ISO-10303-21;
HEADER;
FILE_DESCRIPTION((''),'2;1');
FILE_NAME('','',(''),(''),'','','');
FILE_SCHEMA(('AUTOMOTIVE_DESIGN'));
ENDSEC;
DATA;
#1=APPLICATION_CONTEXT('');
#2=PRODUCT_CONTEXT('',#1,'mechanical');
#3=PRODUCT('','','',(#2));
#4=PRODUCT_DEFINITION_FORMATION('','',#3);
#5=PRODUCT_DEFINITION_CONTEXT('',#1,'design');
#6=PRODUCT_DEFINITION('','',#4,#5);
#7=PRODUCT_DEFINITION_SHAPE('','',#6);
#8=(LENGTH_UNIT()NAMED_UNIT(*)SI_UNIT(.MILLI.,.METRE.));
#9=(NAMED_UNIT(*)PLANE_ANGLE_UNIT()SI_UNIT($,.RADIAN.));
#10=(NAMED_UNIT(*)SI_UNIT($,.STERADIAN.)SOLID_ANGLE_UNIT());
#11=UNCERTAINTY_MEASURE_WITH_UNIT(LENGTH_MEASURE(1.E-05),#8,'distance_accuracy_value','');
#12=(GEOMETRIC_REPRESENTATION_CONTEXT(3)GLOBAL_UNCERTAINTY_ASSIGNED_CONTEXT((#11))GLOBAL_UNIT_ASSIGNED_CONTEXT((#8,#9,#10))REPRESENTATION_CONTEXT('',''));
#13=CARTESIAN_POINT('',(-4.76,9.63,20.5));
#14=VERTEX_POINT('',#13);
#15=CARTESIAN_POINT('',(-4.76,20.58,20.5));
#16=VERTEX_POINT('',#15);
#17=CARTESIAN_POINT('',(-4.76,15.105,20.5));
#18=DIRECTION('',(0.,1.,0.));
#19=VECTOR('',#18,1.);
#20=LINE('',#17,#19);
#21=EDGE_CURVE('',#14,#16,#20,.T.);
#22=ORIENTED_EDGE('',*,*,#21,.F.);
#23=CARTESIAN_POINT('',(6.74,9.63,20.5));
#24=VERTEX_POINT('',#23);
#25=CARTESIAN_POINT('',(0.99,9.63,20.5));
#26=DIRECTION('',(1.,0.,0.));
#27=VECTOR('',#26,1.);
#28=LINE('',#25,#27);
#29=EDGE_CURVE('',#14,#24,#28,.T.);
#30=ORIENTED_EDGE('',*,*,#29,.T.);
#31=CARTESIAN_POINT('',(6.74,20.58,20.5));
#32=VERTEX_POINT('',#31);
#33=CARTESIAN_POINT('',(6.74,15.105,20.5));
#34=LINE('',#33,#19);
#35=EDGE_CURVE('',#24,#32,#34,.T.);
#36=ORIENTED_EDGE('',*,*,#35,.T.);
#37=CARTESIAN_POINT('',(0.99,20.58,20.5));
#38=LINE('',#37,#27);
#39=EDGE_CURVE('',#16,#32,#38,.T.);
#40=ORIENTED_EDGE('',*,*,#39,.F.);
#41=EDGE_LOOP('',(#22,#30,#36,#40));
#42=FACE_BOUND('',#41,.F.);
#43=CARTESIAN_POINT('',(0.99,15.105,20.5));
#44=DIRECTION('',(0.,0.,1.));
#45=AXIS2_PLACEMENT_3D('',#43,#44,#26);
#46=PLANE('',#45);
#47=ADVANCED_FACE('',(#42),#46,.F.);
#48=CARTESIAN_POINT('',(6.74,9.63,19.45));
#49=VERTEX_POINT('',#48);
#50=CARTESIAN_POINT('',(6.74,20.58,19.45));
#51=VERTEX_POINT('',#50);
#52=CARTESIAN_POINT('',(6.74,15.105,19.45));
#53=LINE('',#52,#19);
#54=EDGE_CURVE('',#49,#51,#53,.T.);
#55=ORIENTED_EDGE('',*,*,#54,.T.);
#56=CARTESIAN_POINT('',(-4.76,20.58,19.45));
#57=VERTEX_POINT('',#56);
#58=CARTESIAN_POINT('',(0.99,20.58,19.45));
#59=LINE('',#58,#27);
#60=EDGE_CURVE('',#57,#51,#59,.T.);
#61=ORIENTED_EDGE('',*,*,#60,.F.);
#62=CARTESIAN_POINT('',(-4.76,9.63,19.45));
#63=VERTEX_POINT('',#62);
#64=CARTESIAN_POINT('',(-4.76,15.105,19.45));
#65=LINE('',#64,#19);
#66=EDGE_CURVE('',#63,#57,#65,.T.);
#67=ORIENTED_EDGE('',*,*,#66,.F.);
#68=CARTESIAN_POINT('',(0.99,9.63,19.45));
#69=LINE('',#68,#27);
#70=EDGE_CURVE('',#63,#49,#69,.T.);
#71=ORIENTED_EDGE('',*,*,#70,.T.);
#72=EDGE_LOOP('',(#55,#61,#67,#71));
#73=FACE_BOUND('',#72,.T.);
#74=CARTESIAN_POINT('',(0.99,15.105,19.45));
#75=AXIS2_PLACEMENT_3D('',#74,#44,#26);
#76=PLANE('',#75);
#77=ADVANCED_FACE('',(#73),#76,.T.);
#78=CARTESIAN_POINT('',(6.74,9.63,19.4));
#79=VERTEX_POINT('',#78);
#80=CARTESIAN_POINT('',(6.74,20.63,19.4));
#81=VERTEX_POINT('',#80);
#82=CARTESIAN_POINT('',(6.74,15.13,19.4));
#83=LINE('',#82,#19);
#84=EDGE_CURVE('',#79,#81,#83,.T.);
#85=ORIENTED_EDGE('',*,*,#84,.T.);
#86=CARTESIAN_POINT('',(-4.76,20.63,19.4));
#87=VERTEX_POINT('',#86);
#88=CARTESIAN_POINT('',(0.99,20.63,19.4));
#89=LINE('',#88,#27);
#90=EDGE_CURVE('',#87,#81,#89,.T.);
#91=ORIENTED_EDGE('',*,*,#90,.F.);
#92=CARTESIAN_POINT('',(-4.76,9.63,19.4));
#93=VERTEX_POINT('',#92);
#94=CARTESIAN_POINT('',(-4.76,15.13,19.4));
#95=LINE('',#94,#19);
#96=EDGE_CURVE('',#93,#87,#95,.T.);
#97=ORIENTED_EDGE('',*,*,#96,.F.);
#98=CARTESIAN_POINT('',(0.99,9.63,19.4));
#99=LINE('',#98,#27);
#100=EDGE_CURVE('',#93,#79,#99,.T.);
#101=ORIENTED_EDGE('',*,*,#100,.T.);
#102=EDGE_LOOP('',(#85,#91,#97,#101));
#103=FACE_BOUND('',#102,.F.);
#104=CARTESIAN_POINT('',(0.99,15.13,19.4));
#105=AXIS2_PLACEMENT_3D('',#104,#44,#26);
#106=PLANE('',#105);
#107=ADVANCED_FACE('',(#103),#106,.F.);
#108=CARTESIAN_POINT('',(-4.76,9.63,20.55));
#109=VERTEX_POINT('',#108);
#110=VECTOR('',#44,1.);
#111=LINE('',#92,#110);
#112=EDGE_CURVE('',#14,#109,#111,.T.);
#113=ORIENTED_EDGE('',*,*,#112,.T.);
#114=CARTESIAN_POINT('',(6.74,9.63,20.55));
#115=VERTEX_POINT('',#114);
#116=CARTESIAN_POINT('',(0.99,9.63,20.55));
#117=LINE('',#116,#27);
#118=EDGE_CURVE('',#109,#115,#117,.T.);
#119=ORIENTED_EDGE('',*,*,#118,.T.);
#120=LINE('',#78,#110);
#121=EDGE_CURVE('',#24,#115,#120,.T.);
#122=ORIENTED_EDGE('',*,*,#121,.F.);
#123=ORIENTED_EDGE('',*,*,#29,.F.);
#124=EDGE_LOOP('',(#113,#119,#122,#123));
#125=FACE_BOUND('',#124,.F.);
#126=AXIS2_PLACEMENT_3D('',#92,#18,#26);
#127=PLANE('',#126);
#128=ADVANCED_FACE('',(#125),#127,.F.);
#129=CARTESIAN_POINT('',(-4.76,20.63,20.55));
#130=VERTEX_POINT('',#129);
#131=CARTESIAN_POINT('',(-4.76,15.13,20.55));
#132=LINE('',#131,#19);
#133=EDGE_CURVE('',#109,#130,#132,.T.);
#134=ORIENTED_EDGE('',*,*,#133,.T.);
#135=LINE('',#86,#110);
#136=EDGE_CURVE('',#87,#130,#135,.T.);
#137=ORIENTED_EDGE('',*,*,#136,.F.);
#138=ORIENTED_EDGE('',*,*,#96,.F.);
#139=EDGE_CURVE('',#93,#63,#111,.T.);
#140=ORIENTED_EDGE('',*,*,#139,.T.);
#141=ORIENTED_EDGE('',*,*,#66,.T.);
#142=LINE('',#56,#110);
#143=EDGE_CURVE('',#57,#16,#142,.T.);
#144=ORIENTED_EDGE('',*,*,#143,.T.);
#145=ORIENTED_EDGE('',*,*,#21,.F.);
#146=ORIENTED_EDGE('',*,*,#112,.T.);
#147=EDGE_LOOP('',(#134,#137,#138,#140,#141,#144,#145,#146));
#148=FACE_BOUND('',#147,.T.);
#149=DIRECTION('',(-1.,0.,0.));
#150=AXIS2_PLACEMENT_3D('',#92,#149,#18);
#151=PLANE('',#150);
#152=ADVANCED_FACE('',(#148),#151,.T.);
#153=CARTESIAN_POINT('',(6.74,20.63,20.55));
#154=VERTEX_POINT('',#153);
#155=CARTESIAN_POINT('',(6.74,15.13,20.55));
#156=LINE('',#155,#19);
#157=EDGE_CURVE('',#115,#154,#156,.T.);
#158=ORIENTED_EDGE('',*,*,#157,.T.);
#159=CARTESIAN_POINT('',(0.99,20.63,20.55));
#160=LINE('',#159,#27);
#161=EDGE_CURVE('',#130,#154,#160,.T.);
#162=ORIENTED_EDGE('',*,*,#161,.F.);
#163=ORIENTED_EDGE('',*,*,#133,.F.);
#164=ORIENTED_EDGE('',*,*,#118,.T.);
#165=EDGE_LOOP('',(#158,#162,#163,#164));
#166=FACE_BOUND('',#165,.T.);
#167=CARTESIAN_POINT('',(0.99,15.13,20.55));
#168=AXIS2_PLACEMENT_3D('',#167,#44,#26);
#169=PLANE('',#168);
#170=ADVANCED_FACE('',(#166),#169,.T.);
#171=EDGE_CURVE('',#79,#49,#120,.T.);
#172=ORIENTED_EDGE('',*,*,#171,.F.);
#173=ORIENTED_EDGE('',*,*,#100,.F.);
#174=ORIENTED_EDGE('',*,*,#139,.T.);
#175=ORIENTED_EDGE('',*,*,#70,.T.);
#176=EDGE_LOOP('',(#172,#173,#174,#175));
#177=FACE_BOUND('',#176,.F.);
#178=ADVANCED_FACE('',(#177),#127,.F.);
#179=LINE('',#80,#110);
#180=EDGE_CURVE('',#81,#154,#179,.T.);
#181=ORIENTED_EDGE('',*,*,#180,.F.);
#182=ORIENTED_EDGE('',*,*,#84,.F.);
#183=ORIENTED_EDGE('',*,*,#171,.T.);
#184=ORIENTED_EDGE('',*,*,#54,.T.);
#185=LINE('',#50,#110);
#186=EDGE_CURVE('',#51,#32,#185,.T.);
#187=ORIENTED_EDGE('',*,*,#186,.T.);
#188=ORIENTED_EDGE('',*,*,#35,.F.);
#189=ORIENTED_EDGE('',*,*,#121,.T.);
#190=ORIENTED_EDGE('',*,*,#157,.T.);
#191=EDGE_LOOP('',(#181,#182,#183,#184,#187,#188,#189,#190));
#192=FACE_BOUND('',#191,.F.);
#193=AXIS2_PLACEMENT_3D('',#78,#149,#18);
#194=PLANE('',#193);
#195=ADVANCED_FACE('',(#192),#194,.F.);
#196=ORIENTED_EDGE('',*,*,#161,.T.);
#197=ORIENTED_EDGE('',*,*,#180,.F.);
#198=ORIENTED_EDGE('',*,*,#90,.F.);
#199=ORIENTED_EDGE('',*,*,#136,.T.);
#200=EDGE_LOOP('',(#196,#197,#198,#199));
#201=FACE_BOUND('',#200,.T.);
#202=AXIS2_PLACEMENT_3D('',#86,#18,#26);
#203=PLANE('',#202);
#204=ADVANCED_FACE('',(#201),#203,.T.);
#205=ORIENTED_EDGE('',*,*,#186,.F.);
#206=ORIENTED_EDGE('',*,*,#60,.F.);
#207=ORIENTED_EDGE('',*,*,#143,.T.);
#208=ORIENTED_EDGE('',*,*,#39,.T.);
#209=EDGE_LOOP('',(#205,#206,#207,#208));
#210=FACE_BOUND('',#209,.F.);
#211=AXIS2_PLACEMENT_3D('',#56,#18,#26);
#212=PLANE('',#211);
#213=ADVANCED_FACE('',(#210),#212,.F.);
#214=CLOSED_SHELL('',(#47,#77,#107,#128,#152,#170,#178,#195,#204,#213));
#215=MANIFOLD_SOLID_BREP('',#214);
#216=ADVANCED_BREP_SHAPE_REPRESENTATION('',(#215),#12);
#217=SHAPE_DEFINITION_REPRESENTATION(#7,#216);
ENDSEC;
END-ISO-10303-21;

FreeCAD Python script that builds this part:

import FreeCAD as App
import Part
import Sketcher
from FreeCAD import Vector
Q = App.Units.Quantity


def add_polygon(sketch, points):
    """Adds a closed chain of lines whose ends are joined by coincident constraints."""
    first, n = sketch.GeometryCount, len(points)
    for a, b in zip(points, points[1:] + points[:1]):
        sketch.addGeometry(Part.LineSegment(App.Vector(*a, 0), App.Vector(*b, 0)), False)
    for i in range(n):
        sketch.addConstraint(Sketcher.Constraint("Coincident", first + i, 2, first + (i + 1) % n, 1))

doc = App.newDocument("Part")
params = doc.addObject("Spreadsheet::Sheet", "Params")
for row, (alias, value) in enumerate([
    ("sketch1_width", "11.5 mm"),
    ("sketch1_height", "10.95 mm"),
    ("pad1_length", "1.05 mm"),
    ("sketch2_height", "11 mm"),
    ("sketch2_width", "11.5 mm"),
    ("pad2_length", "1.15 mm"),
], start=1):
    params.set(f"A{row}", alias)
    params.set(f"B{row}", "=" + value)
    params.setAlias(f"B{row}", alias)

body = doc.addObject("PartDesign::Body", "Body")

# Sketch on XY plane
sketch1 = body.newObject("Sketcher::SketchObject", "Sketch")
sketch1.AttachmentSupport = (doc.getObject("XY_Plane"), [""])
sketch1.MapMode = "FlatFace"
sketch1.AttachmentOffset = App.Placement(Vector(0, 0, 0.05), App.Rotation())
add_polygon(sketch1, [(0, 11), (0, 0), (12, 0), (12, 11)])  # lines 0-3
sketch1.addConstraint(Sketcher.Constraint("Vertical", 0))
sketch1.addConstraint(Sketcher.Constraint("Horizontal", 1))
sketch1.addConstraint(Sketcher.Constraint("Vertical", 2))
sketch1.addConstraint(Sketcher.Constraint("Horizontal", 3))
sketch1.addConstraint(Sketcher.Constraint("Coincident", 0, 2, -1, 1))
sketch1.addConstraint(Sketcher.Constraint("DistanceX", 1, 1, 1, 2, Q("11.5 mm")))
sketch1.addConstraint(Sketcher.Constraint("DistanceY", 0, 2, 0, 1, Q("10.95 mm")))
sketch1.setExpression("Constraints[9]", "Params.sketch1_width")
sketch1.setExpression("Constraints[10]", "Params.sketch1_height")
pad1 = body.newObject("PartDesign::Pad", "Pad")
pad1.Profile = sketch1
pad1.setExpression("Length", "Params.pad1_length")
body2 = doc.addObject("PartDesign::Body", "Body001")

# Sketch on XY plane
sketch2 = body2.newObject("Sketcher::SketchObject", "Sketch001")
sketch2.AttachmentSupport = (doc.getObject("XY_Plane001"), [""])
sketch2.MapMode = "FlatFace"
add_polygon(sketch2, [(0, 11), (0, 0), (12, 0), (12, 11)])  # lines 0-3
sketch2.addConstraint(Sketcher.Constraint("Vertical", 0))
sketch2.addConstraint(Sketcher.Constraint("Horizontal", 1))
sketch2.addConstraint(Sketcher.Constraint("Vertical", 2))
sketch2.addConstraint(Sketcher.Constraint("Horizontal", 3))
sketch2.addConstraint(Sketcher.Constraint("Coincident", 0, 2, -1, 1))
sketch2.addConstraint(Sketcher.Constraint("DistanceY", 0, 2, 0, 1, Q("11 mm")))
sketch2.addConstraint(Sketcher.Constraint("DistanceX", 1, 1, 1, 2, Q("11.5 mm")))
sketch2.setExpression("Constraints[9]", "Params.sketch2_height")
sketch2.setExpression("Constraints[10]", "Params.sketch2_width")
pad2 = body2.newObject("PartDesign::Pad", "Pad001")
pad2.Profile = sketch2
pad2.setExpression("Length", "Params.pad2_length")
doc.recompute()

boolean = body2.newObject("PartDesign::Boolean", "Boolean")
boolean.Type = "Cut"
boolean.addObjects([body])
body3 = doc.addObject("PartDesign::Body", "Body002")
doc.recompute()

body2.Placement = App.Placement(Vector(-4.76, 9.63, 19.4), App.Rotation(Vector(0, 0, 1), 0))
boolean2 = body3.newObject("PartDesign::Boolean", "Boolean001")
boolean2.Type = "Fuse"
boolean2.addObjects([body2])

doc.recompute()
